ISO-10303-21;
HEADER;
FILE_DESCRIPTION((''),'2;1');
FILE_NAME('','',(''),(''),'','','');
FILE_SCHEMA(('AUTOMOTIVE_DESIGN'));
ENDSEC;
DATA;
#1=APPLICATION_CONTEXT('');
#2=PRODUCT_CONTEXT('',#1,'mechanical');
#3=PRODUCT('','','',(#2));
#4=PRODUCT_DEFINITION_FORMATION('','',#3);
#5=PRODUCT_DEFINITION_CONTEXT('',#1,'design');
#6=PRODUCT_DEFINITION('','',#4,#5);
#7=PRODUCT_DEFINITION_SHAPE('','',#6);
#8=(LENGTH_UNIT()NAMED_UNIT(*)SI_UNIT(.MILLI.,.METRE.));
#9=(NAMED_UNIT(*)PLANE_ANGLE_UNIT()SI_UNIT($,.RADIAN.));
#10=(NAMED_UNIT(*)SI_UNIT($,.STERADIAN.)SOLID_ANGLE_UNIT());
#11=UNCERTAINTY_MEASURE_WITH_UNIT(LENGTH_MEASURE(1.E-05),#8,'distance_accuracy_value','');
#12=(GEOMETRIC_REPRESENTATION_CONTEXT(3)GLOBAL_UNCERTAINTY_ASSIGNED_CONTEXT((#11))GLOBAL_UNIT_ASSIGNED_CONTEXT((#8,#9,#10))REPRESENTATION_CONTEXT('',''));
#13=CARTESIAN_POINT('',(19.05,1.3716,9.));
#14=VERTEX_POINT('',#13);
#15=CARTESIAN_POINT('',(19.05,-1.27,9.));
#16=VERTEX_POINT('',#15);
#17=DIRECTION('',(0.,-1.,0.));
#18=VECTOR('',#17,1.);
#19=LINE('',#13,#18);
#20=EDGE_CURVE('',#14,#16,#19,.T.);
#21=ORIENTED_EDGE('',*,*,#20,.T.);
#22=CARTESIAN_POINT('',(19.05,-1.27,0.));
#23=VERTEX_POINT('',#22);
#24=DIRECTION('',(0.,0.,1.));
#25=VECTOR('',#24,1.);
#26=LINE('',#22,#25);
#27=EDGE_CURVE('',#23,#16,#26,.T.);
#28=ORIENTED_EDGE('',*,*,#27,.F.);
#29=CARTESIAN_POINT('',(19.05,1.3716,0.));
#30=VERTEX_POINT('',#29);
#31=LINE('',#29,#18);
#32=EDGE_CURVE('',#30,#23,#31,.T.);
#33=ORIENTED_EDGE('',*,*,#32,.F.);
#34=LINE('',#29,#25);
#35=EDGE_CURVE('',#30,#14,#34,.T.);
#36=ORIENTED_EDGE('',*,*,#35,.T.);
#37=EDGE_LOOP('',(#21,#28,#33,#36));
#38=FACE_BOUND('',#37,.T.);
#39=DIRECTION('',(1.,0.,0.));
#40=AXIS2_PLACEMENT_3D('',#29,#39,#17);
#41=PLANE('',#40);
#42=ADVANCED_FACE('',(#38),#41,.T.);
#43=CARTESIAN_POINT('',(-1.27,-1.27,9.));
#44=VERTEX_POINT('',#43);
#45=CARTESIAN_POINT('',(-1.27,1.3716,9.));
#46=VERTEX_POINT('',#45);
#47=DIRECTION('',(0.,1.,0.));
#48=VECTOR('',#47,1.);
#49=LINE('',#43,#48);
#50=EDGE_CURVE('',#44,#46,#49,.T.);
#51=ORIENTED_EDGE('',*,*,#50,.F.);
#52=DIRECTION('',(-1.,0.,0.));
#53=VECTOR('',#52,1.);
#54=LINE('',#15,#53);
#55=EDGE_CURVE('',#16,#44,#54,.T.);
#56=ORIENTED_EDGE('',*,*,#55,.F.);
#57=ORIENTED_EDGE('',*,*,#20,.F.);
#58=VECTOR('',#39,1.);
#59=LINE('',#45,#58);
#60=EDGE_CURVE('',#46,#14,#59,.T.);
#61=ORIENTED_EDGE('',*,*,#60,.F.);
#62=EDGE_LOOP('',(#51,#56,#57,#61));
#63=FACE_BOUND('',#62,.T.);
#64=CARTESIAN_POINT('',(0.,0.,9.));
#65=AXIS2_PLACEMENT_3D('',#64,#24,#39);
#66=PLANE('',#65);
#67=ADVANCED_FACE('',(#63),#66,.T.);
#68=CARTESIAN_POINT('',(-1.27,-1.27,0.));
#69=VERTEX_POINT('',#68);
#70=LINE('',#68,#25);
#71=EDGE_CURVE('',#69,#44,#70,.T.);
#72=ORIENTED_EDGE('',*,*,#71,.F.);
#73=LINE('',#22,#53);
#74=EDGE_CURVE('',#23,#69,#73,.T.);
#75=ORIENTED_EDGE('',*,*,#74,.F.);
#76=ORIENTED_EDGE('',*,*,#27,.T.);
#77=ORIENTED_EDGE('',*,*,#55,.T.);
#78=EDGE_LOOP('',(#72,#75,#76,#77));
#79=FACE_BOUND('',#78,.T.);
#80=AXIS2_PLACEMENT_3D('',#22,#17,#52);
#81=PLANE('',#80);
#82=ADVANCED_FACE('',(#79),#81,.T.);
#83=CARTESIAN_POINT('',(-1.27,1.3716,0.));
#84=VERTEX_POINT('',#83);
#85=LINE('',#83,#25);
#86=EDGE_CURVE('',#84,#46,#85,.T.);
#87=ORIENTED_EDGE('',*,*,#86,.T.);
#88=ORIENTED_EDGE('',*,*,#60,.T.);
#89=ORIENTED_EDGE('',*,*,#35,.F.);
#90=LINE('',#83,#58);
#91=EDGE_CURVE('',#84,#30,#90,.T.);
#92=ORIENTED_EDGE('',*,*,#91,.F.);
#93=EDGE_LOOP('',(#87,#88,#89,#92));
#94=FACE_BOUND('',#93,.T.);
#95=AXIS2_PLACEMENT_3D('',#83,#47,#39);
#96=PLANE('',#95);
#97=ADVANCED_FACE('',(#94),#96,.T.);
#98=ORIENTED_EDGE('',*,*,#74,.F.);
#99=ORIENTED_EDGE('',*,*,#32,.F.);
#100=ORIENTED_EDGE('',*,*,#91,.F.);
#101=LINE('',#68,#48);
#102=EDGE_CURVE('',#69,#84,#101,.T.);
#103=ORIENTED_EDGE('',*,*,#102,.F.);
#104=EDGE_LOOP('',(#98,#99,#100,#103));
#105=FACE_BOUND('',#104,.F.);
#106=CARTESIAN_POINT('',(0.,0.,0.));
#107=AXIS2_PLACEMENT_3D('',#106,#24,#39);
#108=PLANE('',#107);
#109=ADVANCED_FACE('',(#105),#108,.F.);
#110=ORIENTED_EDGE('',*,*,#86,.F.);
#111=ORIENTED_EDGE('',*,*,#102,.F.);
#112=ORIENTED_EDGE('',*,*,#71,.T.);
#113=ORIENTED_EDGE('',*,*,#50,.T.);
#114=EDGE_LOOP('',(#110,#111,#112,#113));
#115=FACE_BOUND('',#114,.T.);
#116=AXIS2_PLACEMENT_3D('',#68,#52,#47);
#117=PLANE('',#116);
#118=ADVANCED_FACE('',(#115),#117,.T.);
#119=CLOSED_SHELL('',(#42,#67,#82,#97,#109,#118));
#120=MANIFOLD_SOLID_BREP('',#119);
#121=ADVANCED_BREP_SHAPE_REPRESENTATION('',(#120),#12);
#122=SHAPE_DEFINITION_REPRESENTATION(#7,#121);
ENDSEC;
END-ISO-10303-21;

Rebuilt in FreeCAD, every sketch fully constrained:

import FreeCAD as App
import Part
import Sketcher
Q = App.Units.Quantity


def add_polygon(sketch, points):
    """Adds a closed chain of lines whose ends are joined by coincident constraints."""
    first, n = sketch.GeometryCount, len(points)
    for a, b in zip(points, points[1:] + points[:1]):
        sketch.addGeometry(Part.LineSegment(App.Vector(*a, 0), App.Vector(*b, 0)), False)
    for i in range(n):
        sketch.addConstraint(Sketcher.Constraint("Coincident", first + i, 2, first + (i + 1) % n, 1))

doc = App.newDocument("Part")
body = doc.addObject("PartDesign::Body", "Body")

# Sketch on XY plane
sketch1 = body.newObject("Sketcher::SketchObject", "Sketch")
sketch1.AttachmentSupport = (doc.getObject("XY_Plane"), [""])
sketch1.MapMode = "FlatFace"
add_polygon(sketch1, [(19.1, 1.4), (-1.3, 1.4), (-1.3, -1.3), (19.1, -1.3)])  # lines 0-3
sketch1.addConstraint([
    Sketcher.Constraint("Horizontal", 0),
    Sketcher.Constraint("Vertical", 1),
    Sketcher.Constraint("Horizontal", 2),
    Sketcher.Constraint("Vertical", 3),
    Sketcher.Constraint("DistanceX", 0, 2, 0, 1, Q("0.8 in")),
    Sketcher.Constraint("DistanceY", 1, 2, 1, 1, Q("0.104 in")),
    Sketcher.Constraint("DistanceX", 0, 2, -1, 1, Q("0.05 in")),
    Sketcher.Constraint("DistanceY", 1, 2, -1, 1, Q("0.05 in")),
])
pad1 = body.newObject("PartDesign::Pad", "Pad")
pad1.Profile = sketch1
pad1.Length = 9

doc.recompute()
